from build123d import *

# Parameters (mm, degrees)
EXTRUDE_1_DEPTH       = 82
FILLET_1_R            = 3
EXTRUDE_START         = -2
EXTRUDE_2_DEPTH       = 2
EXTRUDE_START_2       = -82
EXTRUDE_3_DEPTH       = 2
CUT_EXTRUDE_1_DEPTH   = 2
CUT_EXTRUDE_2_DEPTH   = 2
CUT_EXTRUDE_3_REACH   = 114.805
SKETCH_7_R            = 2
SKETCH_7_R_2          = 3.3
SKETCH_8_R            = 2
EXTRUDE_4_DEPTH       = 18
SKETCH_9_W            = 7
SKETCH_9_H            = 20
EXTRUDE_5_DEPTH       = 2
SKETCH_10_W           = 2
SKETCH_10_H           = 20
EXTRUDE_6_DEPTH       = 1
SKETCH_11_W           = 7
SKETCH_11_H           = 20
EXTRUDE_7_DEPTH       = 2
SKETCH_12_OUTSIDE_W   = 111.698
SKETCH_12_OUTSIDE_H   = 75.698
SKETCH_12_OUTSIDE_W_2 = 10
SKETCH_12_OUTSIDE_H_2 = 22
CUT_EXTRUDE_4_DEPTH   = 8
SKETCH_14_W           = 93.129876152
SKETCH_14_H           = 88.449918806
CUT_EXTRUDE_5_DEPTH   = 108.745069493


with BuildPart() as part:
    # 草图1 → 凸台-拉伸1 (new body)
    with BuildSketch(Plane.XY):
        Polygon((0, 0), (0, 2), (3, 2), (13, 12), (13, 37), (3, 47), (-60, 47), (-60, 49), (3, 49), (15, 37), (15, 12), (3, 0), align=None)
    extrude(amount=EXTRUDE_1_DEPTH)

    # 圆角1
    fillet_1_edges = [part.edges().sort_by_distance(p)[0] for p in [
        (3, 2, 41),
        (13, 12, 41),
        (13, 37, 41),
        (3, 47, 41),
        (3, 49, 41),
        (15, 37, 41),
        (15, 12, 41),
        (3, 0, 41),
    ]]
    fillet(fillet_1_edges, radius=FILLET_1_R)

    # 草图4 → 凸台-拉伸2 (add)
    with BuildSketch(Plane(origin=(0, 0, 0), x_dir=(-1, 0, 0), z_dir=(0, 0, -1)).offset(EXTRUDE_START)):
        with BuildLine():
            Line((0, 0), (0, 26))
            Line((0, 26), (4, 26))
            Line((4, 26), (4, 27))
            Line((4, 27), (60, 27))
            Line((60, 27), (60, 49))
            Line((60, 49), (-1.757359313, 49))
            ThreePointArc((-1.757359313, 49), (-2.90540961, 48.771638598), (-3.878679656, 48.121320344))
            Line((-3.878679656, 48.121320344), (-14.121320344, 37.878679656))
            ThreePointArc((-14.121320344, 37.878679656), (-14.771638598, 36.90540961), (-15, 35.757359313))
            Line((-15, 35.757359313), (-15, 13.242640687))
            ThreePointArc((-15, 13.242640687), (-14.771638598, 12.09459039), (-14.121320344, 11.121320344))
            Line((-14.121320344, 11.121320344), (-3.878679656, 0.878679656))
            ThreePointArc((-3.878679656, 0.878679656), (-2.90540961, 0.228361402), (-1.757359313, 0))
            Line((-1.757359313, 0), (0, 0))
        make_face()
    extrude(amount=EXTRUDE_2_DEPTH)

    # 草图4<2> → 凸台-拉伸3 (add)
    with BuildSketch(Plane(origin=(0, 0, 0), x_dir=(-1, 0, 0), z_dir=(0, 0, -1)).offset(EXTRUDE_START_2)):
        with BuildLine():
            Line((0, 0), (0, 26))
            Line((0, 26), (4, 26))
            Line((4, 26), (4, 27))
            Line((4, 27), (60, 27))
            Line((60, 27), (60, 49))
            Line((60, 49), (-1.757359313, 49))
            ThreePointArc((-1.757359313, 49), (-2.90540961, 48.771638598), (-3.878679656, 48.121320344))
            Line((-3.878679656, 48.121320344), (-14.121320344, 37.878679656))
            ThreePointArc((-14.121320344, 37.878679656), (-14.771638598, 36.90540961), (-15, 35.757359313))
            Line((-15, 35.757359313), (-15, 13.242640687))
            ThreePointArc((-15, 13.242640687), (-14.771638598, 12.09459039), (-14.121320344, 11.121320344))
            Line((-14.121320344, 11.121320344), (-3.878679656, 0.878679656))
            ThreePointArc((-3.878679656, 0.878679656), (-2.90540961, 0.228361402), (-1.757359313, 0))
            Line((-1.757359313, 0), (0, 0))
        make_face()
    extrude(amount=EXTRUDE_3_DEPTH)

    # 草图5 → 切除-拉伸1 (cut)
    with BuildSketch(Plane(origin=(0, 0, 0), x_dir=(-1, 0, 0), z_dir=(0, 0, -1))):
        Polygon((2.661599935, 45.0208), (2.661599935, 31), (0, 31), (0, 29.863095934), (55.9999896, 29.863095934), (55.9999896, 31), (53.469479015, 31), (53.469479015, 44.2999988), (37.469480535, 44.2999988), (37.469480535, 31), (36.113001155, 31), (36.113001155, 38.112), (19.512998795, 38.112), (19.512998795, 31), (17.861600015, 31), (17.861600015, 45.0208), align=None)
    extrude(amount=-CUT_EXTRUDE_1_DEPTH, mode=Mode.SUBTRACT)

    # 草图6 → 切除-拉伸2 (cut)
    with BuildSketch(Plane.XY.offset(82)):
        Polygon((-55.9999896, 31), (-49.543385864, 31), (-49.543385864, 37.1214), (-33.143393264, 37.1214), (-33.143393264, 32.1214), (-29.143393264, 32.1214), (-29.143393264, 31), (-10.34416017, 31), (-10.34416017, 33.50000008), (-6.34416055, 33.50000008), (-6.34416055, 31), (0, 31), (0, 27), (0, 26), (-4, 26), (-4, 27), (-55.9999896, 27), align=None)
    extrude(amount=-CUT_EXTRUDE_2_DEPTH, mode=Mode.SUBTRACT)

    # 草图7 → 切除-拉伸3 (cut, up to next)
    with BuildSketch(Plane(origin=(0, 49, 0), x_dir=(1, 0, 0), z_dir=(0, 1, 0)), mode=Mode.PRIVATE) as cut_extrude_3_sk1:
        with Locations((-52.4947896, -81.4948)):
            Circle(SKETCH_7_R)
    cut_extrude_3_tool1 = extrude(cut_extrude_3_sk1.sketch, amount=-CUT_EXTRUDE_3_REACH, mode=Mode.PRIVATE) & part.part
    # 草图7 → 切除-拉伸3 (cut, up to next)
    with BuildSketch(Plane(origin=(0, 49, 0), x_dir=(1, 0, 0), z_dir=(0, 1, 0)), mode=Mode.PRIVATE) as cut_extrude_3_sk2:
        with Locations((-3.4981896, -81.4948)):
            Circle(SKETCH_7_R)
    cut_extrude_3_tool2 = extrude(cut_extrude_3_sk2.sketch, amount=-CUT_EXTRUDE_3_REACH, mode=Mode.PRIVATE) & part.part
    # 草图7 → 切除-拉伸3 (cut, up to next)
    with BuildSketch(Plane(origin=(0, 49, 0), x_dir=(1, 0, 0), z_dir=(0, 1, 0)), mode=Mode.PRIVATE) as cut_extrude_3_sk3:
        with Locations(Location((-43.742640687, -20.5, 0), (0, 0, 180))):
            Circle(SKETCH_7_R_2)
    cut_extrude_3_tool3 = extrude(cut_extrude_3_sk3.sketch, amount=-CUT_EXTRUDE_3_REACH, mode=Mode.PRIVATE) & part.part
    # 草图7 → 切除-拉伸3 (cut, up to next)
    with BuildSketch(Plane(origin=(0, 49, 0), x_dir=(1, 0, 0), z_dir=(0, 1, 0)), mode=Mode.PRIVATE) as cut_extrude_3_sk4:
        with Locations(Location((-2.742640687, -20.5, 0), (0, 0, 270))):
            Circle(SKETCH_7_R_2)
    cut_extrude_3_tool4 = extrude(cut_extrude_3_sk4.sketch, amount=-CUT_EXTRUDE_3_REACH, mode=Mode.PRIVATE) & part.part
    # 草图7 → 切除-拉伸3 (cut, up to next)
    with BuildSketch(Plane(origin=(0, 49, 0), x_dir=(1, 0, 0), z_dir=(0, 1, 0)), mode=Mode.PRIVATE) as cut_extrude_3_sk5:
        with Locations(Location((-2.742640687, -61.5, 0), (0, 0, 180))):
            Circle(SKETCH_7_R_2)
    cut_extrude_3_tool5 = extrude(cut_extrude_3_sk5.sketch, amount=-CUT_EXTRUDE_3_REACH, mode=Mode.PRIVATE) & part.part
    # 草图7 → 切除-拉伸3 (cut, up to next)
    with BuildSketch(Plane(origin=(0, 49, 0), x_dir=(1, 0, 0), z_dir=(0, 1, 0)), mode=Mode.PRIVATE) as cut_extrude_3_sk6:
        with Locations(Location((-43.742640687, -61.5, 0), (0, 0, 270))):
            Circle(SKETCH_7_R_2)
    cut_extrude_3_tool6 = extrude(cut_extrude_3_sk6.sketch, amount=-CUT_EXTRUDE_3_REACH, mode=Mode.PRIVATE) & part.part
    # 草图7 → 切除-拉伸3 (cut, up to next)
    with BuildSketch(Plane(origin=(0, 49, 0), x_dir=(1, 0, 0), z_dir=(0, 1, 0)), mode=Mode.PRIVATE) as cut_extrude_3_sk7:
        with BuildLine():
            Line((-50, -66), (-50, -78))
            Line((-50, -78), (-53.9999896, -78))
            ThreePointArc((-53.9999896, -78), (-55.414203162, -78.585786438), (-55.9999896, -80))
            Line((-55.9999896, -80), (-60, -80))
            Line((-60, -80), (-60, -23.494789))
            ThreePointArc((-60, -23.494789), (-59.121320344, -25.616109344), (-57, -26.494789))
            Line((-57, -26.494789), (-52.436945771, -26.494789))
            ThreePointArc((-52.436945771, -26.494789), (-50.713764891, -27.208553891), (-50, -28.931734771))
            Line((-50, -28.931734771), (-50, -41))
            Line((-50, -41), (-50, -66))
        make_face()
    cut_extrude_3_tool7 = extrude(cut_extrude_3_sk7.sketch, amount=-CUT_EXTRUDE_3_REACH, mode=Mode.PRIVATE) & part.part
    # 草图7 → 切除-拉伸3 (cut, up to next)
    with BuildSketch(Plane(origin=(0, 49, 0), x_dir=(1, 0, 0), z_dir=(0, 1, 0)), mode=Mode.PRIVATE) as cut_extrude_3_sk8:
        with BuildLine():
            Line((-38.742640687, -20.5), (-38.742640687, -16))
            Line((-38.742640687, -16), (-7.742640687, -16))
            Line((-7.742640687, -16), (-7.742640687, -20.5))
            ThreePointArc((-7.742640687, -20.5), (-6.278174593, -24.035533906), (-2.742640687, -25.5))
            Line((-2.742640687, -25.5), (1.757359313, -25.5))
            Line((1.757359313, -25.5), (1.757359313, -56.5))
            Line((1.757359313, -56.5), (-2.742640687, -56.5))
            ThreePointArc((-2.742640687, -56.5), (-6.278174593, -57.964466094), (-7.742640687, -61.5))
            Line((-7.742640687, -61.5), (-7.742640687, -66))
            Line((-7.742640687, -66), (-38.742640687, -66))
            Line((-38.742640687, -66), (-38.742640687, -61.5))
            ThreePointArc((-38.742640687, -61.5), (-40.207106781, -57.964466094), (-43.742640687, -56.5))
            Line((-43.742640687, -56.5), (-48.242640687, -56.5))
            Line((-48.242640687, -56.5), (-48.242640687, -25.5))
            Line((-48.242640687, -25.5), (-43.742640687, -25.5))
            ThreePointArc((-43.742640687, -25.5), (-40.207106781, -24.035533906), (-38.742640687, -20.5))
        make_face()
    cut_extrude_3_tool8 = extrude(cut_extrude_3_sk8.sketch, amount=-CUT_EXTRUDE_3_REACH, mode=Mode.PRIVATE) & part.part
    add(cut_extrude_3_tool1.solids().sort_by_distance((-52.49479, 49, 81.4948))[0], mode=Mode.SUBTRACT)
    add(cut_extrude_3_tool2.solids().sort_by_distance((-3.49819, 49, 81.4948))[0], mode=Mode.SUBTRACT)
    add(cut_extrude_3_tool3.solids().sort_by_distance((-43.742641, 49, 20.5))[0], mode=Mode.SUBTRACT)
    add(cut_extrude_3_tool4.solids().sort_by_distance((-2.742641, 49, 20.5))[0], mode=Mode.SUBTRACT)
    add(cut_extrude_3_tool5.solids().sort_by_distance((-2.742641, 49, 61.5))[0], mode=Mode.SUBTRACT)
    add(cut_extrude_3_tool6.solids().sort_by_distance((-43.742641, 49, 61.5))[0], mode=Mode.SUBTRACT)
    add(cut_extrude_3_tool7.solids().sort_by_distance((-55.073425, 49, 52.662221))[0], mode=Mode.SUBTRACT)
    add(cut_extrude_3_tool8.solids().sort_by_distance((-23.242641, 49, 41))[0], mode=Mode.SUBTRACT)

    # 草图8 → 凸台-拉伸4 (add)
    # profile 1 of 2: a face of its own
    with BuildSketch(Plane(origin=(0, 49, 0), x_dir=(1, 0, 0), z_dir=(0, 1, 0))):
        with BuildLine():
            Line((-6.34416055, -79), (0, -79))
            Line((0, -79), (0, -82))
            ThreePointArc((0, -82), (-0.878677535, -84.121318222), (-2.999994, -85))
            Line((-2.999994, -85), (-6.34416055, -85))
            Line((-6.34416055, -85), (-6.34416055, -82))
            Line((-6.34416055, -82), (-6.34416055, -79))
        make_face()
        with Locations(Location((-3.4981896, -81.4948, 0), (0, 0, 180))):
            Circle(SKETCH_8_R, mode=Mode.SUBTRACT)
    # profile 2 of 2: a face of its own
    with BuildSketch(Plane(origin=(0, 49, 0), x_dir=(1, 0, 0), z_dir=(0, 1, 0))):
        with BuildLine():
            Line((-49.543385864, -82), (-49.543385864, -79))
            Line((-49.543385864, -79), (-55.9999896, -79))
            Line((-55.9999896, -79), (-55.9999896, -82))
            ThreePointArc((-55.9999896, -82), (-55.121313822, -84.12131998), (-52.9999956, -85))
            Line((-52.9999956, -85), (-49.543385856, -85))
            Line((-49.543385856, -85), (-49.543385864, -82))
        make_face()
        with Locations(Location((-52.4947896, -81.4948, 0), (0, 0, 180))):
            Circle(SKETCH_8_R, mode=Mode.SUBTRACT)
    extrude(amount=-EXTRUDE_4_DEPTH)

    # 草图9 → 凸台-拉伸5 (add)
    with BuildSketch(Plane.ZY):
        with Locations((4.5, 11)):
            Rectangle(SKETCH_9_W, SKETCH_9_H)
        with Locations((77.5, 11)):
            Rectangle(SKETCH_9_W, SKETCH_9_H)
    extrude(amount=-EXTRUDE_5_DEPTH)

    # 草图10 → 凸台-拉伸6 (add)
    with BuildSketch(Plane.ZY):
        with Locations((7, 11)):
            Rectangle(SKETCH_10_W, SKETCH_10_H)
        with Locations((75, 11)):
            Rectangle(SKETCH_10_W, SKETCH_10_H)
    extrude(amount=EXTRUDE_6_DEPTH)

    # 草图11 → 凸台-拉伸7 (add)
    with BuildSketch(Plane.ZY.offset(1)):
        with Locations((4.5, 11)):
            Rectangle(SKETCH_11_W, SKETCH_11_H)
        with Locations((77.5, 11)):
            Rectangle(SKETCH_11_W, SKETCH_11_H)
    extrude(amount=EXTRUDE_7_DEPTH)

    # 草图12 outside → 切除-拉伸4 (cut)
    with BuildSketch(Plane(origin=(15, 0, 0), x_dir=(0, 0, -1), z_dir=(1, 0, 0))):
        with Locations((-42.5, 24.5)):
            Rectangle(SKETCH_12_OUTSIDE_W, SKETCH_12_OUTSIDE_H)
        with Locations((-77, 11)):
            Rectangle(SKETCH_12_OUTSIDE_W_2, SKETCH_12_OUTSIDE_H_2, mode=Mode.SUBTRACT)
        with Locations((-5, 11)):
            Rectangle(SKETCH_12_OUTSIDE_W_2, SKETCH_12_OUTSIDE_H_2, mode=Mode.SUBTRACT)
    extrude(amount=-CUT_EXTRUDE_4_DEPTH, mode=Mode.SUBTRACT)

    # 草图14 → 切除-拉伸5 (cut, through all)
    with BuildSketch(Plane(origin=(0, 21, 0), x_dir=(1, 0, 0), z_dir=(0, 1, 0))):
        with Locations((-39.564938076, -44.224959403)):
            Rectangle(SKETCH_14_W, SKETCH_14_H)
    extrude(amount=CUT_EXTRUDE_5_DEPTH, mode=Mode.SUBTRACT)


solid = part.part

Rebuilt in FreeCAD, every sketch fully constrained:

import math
import FreeCAD as App
import Part
import Sketcher

V = App.Vector


def edges_at(feature, points):
    """Names of the edges that pass closest to the given points."""
    edges = feature.Shape.Edges
    near = lambda p: min(range(len(edges)), key=lambda i: edges[i].distToShape(Part.Vertex(*p))[0])
    return sorted({f"Edge{near(p) + 1}" for p in points})


def add_polygon(sketch, points):
    """Adds a closed chain of lines whose ends are joined by coincident constraints."""
    first, n = sketch.GeometryCount, len(points)
    for a, b in zip(points, points[1:] + points[:1]):
        sketch.addGeometry(Part.LineSegment(App.Vector(*a, 0), App.Vector(*b, 0)), False)
    for i in range(n):
        sketch.addConstraint(Sketcher.Constraint("Coincident", first + i, 2, first + (i + 1) % n, 1))

doc = App.newDocument("Part")
body = doc.addObject("PartDesign::Body", "Body")

# Sketch on XY plane
sketch1 = body.newObject("Sketcher::SketchObject", "Sketch")
sketch1.AttachmentSupport = (doc.getObject("XY_Plane"), [""])
sketch1.MapMode = "FlatFace"
add_polygon(sketch1, [(0, 2), (0, 0), (3, 0), (15, 12), (15, 37), (3, 49), (-60, 49), (-60, 47), (3, 47), (13, 37), (13, 12), (3, 2)])  # lines 0-11
sketch1.addConstraint(Sketcher.Constraint("Vertical", 0))
sketch1.addConstraint(Sketcher.Constraint("Horizontal", 1))
sketch1.addConstraint(Sketcher.Constraint("Vertical", 3))
sketch1.addConstraint(Sketcher.Constraint("Horizontal", 5))
sketch1.addConstraint(Sketcher.Constraint("Vertical", 6))
sketch1.addConstraint(Sketcher.Constraint("Horizontal", 7))
sketch1.addConstraint(Sketcher.Constraint("Vertical", 9))
sketch1.addConstraint(Sketcher.Constraint("Horizontal", 11))
sketch1.addConstraint(Sketcher.Constraint("Coincident", 0, 2, -1, 1))
sketch1.addConstraint(Sketcher.Constraint("Perpendicular", 2, 4))
sketch1.addConstraint(Sketcher.Constraint("Parallel", 4, 8))
sketch1.addConstraint(Sketcher.Constraint("Perpendicular", 8, 10))
sketch1.addConstraint(Sketcher.Constraint("Horizontal", 3, 2, 8, 2))
sketch1.addConstraint(Sketcher.Constraint("Horizontal", 2, 2, 9, 2))
sketch1.addConstraint(Sketcher.Constraint("Vertical", 1, 2, 4, 2))
sketch1.addConstraint(Sketcher.Constraint("Vertical", 4, 2, 7, 2))
sketch1.addConstraint(Sketcher.Constraint("Vertical", 7, 2, 10, 2))
sketch1.addConstraint(Sketcher.Constraint("Equal", 0, 6))
sketch1.addConstraint(Sketcher.Constraint("DistanceX", 1, 1, 1, 2, 3.0))
sketch1.addConstraint(Sketcher.Constraint("DistanceX", 5, 2, 5, 1, 63.0))
sketch1.addConstraint(Sketcher.Constraint("DistanceY", 0, 2, 0, 1, 2.0))
sketch1.addConstraint(Sketcher.Constraint("DistanceY", 3, 1, 3, 2, 25.0))
sketch1.addConstraint(Sketcher.Constraint("DistanceX", -1, 1, 2, 2, 15.0))
pad1 = body.newObject("PartDesign::Pad", "Pad")
pad1.Profile = sketch1
pad1.Length = 82
doc.recompute()

fillet = body.newObject("PartDesign::Fillet", "Fillet")
fillet.Base = (pad1, edges_at(pad1, [
    (3, 2, 41),
    (13, 12, 41),
    (13, 37, 41),
    (3, 47, 41),
    (3, 49, 41),
    (15, 37, 41),
    (15, 12, 41),
    (3, 0, 41),
]))
fillet.Radius = 3

# Sketch on XY plane
sketch2 = body.newObject("Sketcher::SketchObject", "Sketch001")
sketch2.AttachmentSupport = (doc.getObject("XY_Plane"), [""])
sketch2.MapMode = "FlatFace"
sketch2.AttachmentOffset = App.Placement(V(0, 0, 2), App.Rotation())
sketch2.addGeometry(Part.LineSegment(V(0, 0, 0), V(0, 26, 0)), False)
sketch2.addGeometry(Part.LineSegment(V(0, 26, 0), V(-4, 26, 0)), False)
sketch2.addGeometry(Part.LineSegment(V(-4, 26, 0), V(-4, 27, 0)), False)
sketch2.addGeometry(Part.LineSegment(V(-4, 27, 0), V(-60, 27, 0)), False)
sketch2.addGeometry(Part.LineSegment(V(-60, 27, 0), V(-60, 49, 0)), False)
sketch2.addGeometry(Part.LineSegment(V(-60, 49, 0), V(1.8, 49, 0)), False)
sketch2.addGeometry(Part.ArcOfCircle(Part.Circle(V(1.8, 46, 0), V(0, 0, 1), 3), math.radians(45), math.radians(90)), False)
sketch2.addGeometry(Part.LineSegment(V(3.9, 48.1, 0), V(14.1, 37.9, 0)), False)
sketch2.addGeometry(Part.ArcOfCircle(Part.Circle(V(12, 35.8, 0), V(0, 0, 1), 3), math.radians(0), math.radians(45)), False)
sketch2.addGeometry(Part.LineSegment(V(15, 35.8, 0), V(15, 13.2, 0)), False)
sketch2.addGeometry(Part.ArcOfCircle(Part.Circle(V(12, 13.2, 0), V(0, 0, 1), 3), math.radians(-45), math.radians(0)), False)
sketch2.addGeometry(Part.LineSegment(V(14.1, 11.1, 0), V(3.9, 0.9, 0)), False)
sketch2.addGeometry(Part.ArcOfCircle(Part.Circle(V(1.8, 3, 0), V(0, 0, 1), 3), math.radians(-90), math.radians(-45)), False)
sketch2.addGeometry(Part.LineSegment(V(1.8, 0, 0), V(0, 0, 0)), False)
sketch2.addConstraint(Sketcher.Constraint("Coincident", 0, 2, 1, 1))
sketch2.addConstraint(Sketcher.Constraint("Coincident", 1, 2, 2, 1))
sketch2.addConstraint(Sketcher.Constraint("Coincident", 2, 2, 3, 1))
sketch2.addConstraint(Sketcher.Constraint("Coincident", 3, 2, 4, 1))
sketch2.addConstraint(Sketcher.Constraint("Coincident", 4, 2, 5, 1))
sketch2.addConstraint(Sketcher.Constraint("Tangent", 5, 2, 6, 2))
sketch2.addConstraint(Sketcher.Constraint("Tangent", 6, 1, 7, 1))
sketch2.addConstraint(Sketcher.Constraint("Tangent", 7, 2, 8, 2))
sketch2.addConstraint(Sketcher.Constraint("Tangent", 8, 1, 9, 1))
sketch2.addConstraint(Sketcher.Constraint("Tangent", 9, 2, 10, 2))
sketch2.addConstraint(Sketcher.Constraint("Tangent", 10, 1, 11, 1))
sketch2.addConstraint(Sketcher.Constraint("Tangent", 11, 2, 12, 2))
sketch2.addConstraint(Sketcher.Constraint("Tangent", 12, 1, 13, 1))
sketch2.addConstraint(Sketcher.Constraint("Coincident", 13, 2, 0, 1))
sketch2.addConstraint(Sketcher.Constraint("Vertical", 0))
sketch2.addConstraint(Sketcher.Constraint("Horizontal", 1))
sketch2.addConstraint(Sketcher.Constraint("Vertical", 2))
sketch2.addConstraint(Sketcher.Constraint("Horizontal", 3))
sketch2.addConstraint(Sketcher.Constraint("Vertical", 4))
sketch2.addConstraint(Sketcher.Constraint("Horizontal", 5))
sketch2.addConstraint(Sketcher.Constraint("Vertical", 9))
sketch2.addConstraint(Sketcher.Constraint("Horizontal", 13))
sketch2.addConstraint(Sketcher.Constraint("Coincident", 13, 2, -1, 1))
sketch2.addConstraint(Sketcher.Constraint("Equal", 6, 8))
sketch2.addConstraint(Sketcher.Constraint("Equal", 8, 10))
sketch2.addConstraint(Sketcher.Constraint("Equal", 10, 12))
sketch2.addConstraint(Sketcher.Constraint("Perpendicular", 7, 11))
sketch2.addConstraint(Sketcher.Constraint("Vertical", 6, 3, 12, 3))
sketch2.addConstraint(Sketcher.Constraint("Vertical", 7, 2, 10, 1))
sketch2.addConstraint(Sketcher.Constraint("Radius", 6, 3.0))
sketch2.addConstraint(Sketcher.Constraint("DistanceX", 1, 2, 1, 1, 4.0))
sketch2.addConstraint(Sketcher.Constraint("DistanceX", 3, 2, 3, 1, 56.0))
sketch2.addConstraint(Sketcher.Constraint("DistanceY", 0, 1, 0, 2, 26.0))
sketch2.addConstraint(Sketcher.Constraint("DistanceY", 2, 1, 2, 2, 1.0))
sketch2.addConstraint(Sketcher.Constraint("DistanceY", 4, 1, 4, 2, 22.0))
sketch2.addConstraint(Sketcher.Constraint("DistanceX", -1, 1, 8, 3, 12.0))
sketch2.addConstraint(Sketcher.Constraint("DistanceX", 5, 1, 5, 2, 61.757359))
pad2 = body.newObject("PartDesign::Pad", "Pad001")
pad2.Profile = sketch2
pad2.Length = 2
pad2.Reversed = True

# Sketch on XY plane
sketch3 = body.newObject("Sketcher::SketchObject", "Sketch002")
sketch3.AttachmentSupport = (doc.getObject("XY_Plane"), [""])
sketch3.MapMode = "FlatFace"
sketch3.AttachmentOffset = App.Placement(V(0, 0, 82), App.Rotation())
sketch3.addGeometry(Part.LineSegment(V(0, 0, 0), V(0, 26, 0)), False)
sketch3.addGeometry(Part.LineSegment(V(0, 26, 0), V(-4, 26, 0)), False)
sketch3.addGeometry(Part.LineSegment(V(-4, 26, 0), V(-4, 27, 0)), False)
sketch3.addGeometry(Part.LineSegment(V(-4, 27, 0), V(-60, 27, 0)), False)
sketch3.addGeometry(Part.LineSegment(V(-60, 27, 0), V(-60, 49, 0)), False)
sketch3.addGeometry(Part.LineSegment(V(-60, 49, 0), V(1.8, 49, 0)), False)
sketch3.addGeometry(Part.ArcOfCircle(Part.Circle(V(1.8, 46, 0), V(0, 0, 1), 3), math.radians(45), math.radians(90)), False)
sketch3.addGeometry(Part.LineSegment(V(3.9, 48.1, 0), V(14.1, 37.9, 0)), False)
sketch3.addGeometry(Part.ArcOfCircle(Part.Circle(V(12, 35.8, 0), V(0, 0, 1), 3), math.radians(0), math.radians(45)), False)
sketch3.addGeometry(Part.LineSegment(V(15, 35.8, 0), V(15, 13.2, 0)), False)
sketch3.addGeometry(Part.ArcOfCircle(Part.Circle(V(12, 13.2, 0), V(0, 0, 1), 3), math.radians(-45), math.radians(0)), False)
sketch3.addGeometry(Part.LineSegment(V(14.1, 11.1, 0), V(3.9, 0.9, 0)), False)
sketch3.addGeometry(Part.ArcOfCircle(Part.Circle(V(1.8, 3, 0), V(0, 0, 1), 3), math.radians(-90), math.radians(-45)), False)
sketch3.addGeometry(Part.LineSegment(V(1.8, 0, 0), V(0, 0, 0)), False)
sketch3.addConstraint(Sketcher.Constraint("Coincident", 0, 2, 1, 1))
sketch3.addConstraint(Sketcher.Constraint("Coincident", 1, 2, 2, 1))
sketch3.addConstraint(Sketcher.Constraint("Coincident", 2, 2, 3, 1))
sketch3.addConstraint(Sketcher.Constraint("Coincident", 3, 2, 4, 1))
sketch3.addConstraint(Sketcher.Constraint("Coincident", 4, 2, 5, 1))
sketch3.addConstraint(Sketcher.Constraint("Tangent", 5, 2, 6, 2))
sketch3.addConstraint(Sketcher.Constraint("Tangent", 6, 1, 7, 1))
sketch3.addConstraint(Sketcher.Constraint("Tangent", 7, 2, 8, 2))
sketch3.addConstraint(Sketcher.Constraint("Tangent", 8, 1, 9, 1))
sketch3.addConstraint(Sketcher.Constraint("Tangent", 9, 2, 10, 2))
sketch3.addConstraint(Sketcher.Constraint("Tangent", 10, 1, 11, 1))
sketch3.addConstraint(Sketcher.Constraint("Tangent", 11, 2, 12, 2))
sketch3.addConstraint(Sketcher.Constraint("Tangent", 12, 1, 13, 1))
sketch3.addConstraint(Sketcher.Constraint("Coincident", 13, 2, 0, 1))
sketch3.addConstraint(Sketcher.Constraint("Vertical", 0))
sketch3.addConstraint(Sketcher.Constraint("Horizontal", 1))
sketch3.addConstraint(Sketcher.Constraint("Vertical", 2))
sketch3.addConstraint(Sketcher.Constraint("Horizontal", 3))
sketch3.addConstraint(Sketcher.Constraint("Vertical", 4))
sketch3.addConstraint(Sketcher.Constraint("Horizontal", 5))
sketch3.addConstraint(Sketcher.Constraint("Vertical", 9))
sketch3.addConstraint(Sketcher.Constraint("Horizontal", 13))
sketch3.addConstraint(Sketcher.Constraint("Coincident", 13, 2, -1, 1))
sketch3.addConstraint(Sketcher.Constraint("Equal", 6, 8))
sketch3.addConstraint(Sketcher.Constraint("Equal", 8, 10))
sketch3.addConstraint(Sketcher.Constraint("Equal", 10, 12))
sketch3.addConstraint(Sketcher.Constraint("Perpendicular", 7, 11))
sketch3.addConstraint(Sketcher.Constraint("Vertical", 6, 3, 12, 3))
sketch3.addConstraint(Sketcher.Constraint("Vertical", 7, 2, 10, 1))
sketch3.addConstraint(Sketcher.Constraint("Radius", 6, 3.0))
sketch3.addConstraint(Sketcher.Constraint("DistanceX", 1, 2, 1, 1, 4.0))
sketch3.addConstraint(Sketcher.Constraint("DistanceX", 3, 2, 3, 1, 56.0))
sketch3.addConstraint(Sketcher.Constraint("DistanceY", 0, 1, 0, 2, 26.0))
sketch3.addConstraint(Sketcher.Constraint("DistanceY", 2, 1, 2, 2, 1.0))
sketch3.addConstraint(Sketcher.Constraint("DistanceY", 4, 1, 4, 2, 22.0))
sketch3.addConstraint(Sketcher.Constraint("DistanceX", -1, 1, 8, 3, 12.0))
sketch3.addConstraint(Sketcher.Constraint("DistanceX", 5, 1, 5, 2, 61.757359))
pad3 = body.newObject("PartDesign::Pad", "Pad002")
pad3.Profile = sketch3
pad3.Length = 2
pad3.Reversed = True

# Sketch on XY plane
sketch4 = body.newObject("Sketcher::SketchObject", "Sketch003")
sketch4.AttachmentSupport = (doc.getObject("XY_Plane"), [""])
sketch4.MapMode = "FlatFace"
add_polygon(sketch4, [(-2.7, 45), (-2.7, 31), (0, 31), (0, 29.9), (-56, 29.9), (-56, 31), (-53.5, 31), (-53.5, 44.3), (-37.5, 44.3), (-37.5, 31), (-36.1, 31), (-36.1, 38.1), (-19.5, 38.1), (-19.5, 31), (-17.9, 31), (-17.9, 45)])  # lines 0-15
sketch4.addConstraint(Sketcher.Constraint("Vertical", 0))
sketch4.addConstraint(Sketcher.Constraint("Horizontal", 1))
sketch4.addConstraint(Sketcher.Constraint("Vertical", 2))
sketch4.addConstraint(Sketcher.Constraint("Horizontal", 3))
sketch4.addConstraint(Sketcher.Constraint("Vertical", 4))
sketch4.addConstraint(Sketcher.Constraint("Horizontal", 5))
sketch4.addConstraint(Sketcher.Constraint("Vertical", 6))
sketch4.addConstraint(Sketcher.Constraint("Horizontal", 7))
sketch4.addConstraint(Sketcher.Constraint("Vertical", 8))
sketch4.addConstraint(Sketcher.Constraint("Horizontal", 9))
sketch4.addConstraint(Sketcher.Constraint("Vertical", 10))
sketch4.addConstraint(Sketcher.Constraint("Horizontal", 11))
sketch4.addConstraint(Sketcher.Constraint("Vertical", 12))
sketch4.addConstraint(Sketcher.Constraint("Horizontal", 13))
sketch4.addConstraint(Sketcher.Constraint("Vertical", 14))
sketch4.addConstraint(Sketcher.Constraint("Horizontal", 15))
sketch4.addConstraint(Sketcher.Constraint("PointOnObject", 1, 2, -2))
sketch4.addConstraint(Sketcher.Constraint("Horizontal", 1, 2, 4, 2))
sketch4.addConstraint(Sketcher.Constraint("Horizontal", 5, 2, 8, 2))
sketch4.addConstraint(Sketcher.Constraint("Horizontal", 9, 2, 12, 2))
sketch4.addConstraint(Sketcher.Constraint("DistanceX", 7, 1, 7, 2, 15.999998))
sketch4.addConstraint(Sketcher.Constraint("DistanceX", 15, 1, 15, 2, 15.2))
sketch4.addConstraint(Sketcher.Constraint("DistanceY", 6, 1, 6, 2, 13.299999))
sketch4.addConstraint(Sketcher.Constraint("DistanceY", -1, 1, 0, 2, 31.0))
sketch4.addConstraint(Sketcher.Constraint("DistanceY", 10, 1, 10, 2, 7.112))
sketch4.addConstraint(Sketcher.Constraint("DistanceX", 1, 1, 1, 2, 2.6616))
sketch4.addConstraint(Sketcher.Constraint("DistanceX", 13, 1, 13, 2, 1.651399))
sketch4.addConstraint(Sketcher.Constraint("DistanceY", 0, 2, 0, 1, 14.0208))
sketch4.addConstraint(Sketcher.Constraint("DistanceX", 9, 2, -1, 1, 36.113001))
sketch4.addConstraint(Sketcher.Constraint("DistanceX", 3, 2, 3, 1, 55.99999))
sketch4.addConstraint(Sketcher.Constraint("DistanceX", 5, 1, 5, 2, 2.530511))
sketch4.addConstraint(Sketcher.Constraint("DistanceY", 2, 2, 2, 1, 1.136904))
pocket1 = body.newObject("PartDesign::Pocket", "Pocket")
pocket1.Profile = sketch4
pocket1.Length = 2
pocket1.Reversed = True

# Sketch on XY plane
sketch5 = body.newObject("Sketcher::SketchObject", "Sketch004")
sketch5.AttachmentSupport = (doc.getObject("XY_Plane"), [""])
sketch5.MapMode = "FlatFace"
sketch5.AttachmentOffset = App.Placement(V(0, 0, 82), App.Rotation())
add_polygon(sketch5, [(-49.5, 31), (-56, 31), (-56, 27), (-4, 27), (-4, 26), (0, 26), (0, 31), (-6.3, 31), (-6.3, 33.5), (-10.3, 33.5), (-10.3, 31), (-29.1, 31), (-29.1, 32.1), (-33.1, 32.1), (-33.1, 37.1), (-49.5, 37.1)])  # lines 0-15
sketch5.addConstraint(Sketcher.Constraint("Horizontal", 0))
sketch5.addConstraint(Sketcher.Constraint("Vertical", 1))
sketch5.addConstraint(Sketcher.Constraint("Horizontal", 2))
sketch5.addConstraint(Sketcher.Constraint("Vertical", 3))
sketch5.addConstraint(Sketcher.Constraint("Horizontal", 4))
sketch5.addConstraint(Sketcher.Constraint("Vertical", 5))
sketch5.addConstraint(Sketcher.Constraint("Horizontal", 6))
sketch5.addConstraint(Sketcher.Constraint("Vertical", 7))
sketch5.addConstraint(Sketcher.Constraint("Horizontal", 8))
sketch5.addConstraint(Sketcher.Constraint("Vertical", 9))
sketch5.addConstraint(Sketcher.Constraint("Horizontal", 10))
sketch5.addConstraint(Sketcher.Constraint("Vertical", 11))
sketch5.addConstraint(Sketcher.Constraint("Horizontal", 12))
sketch5.addConstraint(Sketcher.Constraint("Vertical", 13))
sketch5.addConstraint(Sketcher.Constraint("Horizontal", 14))
sketch5.addConstraint(Sketcher.Constraint("Vertical", 15))
sketch5.addConstraint(Sketcher.Constraint("PointOnObject", 4, 2, -2))
sketch5.addConstraint(Sketcher.Constraint("Horizontal", 0, 2, 5, 2))
sketch5.addConstraint(Sketcher.Constraint("Horizontal", 6, 2, 9, 2))
sketch5.addConstraint(Sketcher.Constraint("Equal", 4, 8))
sketch5.addConstraint(Sketcher.Constraint("Equal", 8, 12))
sketch5.addConstraint(Sketcher.Constraint("Equal", 12, 1))
sketch5.addConstraint(Sketcher.Constraint("Equal", 5, 13))
sketch5.addConstraint(Sketcher.Constraint("DistanceX", 4, 1, 4, 2, 4.0))
sketch5.addConstraint(Sketcher.Constraint("DistanceY", 3, 2, 3, 1, 1.0))
sketch5.addConstraint(Sketcher.Constraint("DistanceY", 7, 1, 7, 2, 2.5))
sketch5.addConstraint(Sketcher.Constraint("DistanceY", -1, 1, 0, 2, 31.0))
sketch5.addConstraint(Sketcher.Constraint("DistanceY", 11, 1, 11, 2, 1.1214))
sketch5.addConstraint(Sketcher.Constraint("DistanceX", 2, 1, 2, 2, 51.99999))
sketch5.addConstraint(Sketcher.Constraint("DistanceX", 6, 2, 6, 1, 6.344161))
sketch5.addConstraint(Sketcher.Constraint("DistanceX", 0, 2, 0, 1, 6.456604))
sketch5.addConstraint(Sketcher.Constraint("DistanceX", 10, 2, 10, 1, 18.799233))
pocket2 = body.newObject("PartDesign::Pocket", "Pocket001")
pocket2.Profile = sketch5
pocket2.Length = 2

# Sketch on XZ plane
sketch6 = body.newObject("Sketcher::SketchObject", "Sketch005")
sketch6.AttachmentSupport = (doc.getObject("XZ_Plane"), [""])
sketch6.MapMode = "FlatFace"
sketch6.AttachmentOffset = App.Placement(V(0, 0, -49), App.Rotation())
sketch6.addGeometry(Part.Circle(V(-52.5, 81.5, 0), V(0, 0, 1), 2), False)
sketch6.addConstraint(Sketcher.Constraint("Diameter", 0, 4.0))
sketch6.addConstraint(Sketcher.Constraint("DistanceY", -1, 1, 0, 3, 81.4948))
sketch6.addConstraint(Sketcher.Constraint("DistanceX", 0, 3, -1, 1, 52.49479))
pocket3 = body.newObject("PartDesign::Pocket", "Pocket002")
pocket3.Profile = sketch6
pocket3.Type = "UpToFirst"
pocket3.Reversed = True

# Sketch on XZ plane
sketch7 = body.newObject("Sketcher::SketchObject", "Sketch006")
sketch7.AttachmentSupport = (doc.getObject("XZ_Plane"), [""])
sketch7.MapMode = "FlatFace"
sketch7.AttachmentOffset = App.Placement(V(0, 0, -49), App.Rotation())
sketch7.addGeometry(Part.Circle(V(-3.5, 81.5, 0), V(0, 0, 1), 2), False)
sketch7.addConstraint(Sketcher.Constraint("Diameter", 0, 4.0))
sketch7.addConstraint(Sketcher.Constraint("DistanceY", -1, 1, 0, 3, 81.4948))
sketch7.addConstraint(Sketcher.Constraint("DistanceX", 0, 3, -1, 1, 3.49819))
pocket4 = body.newObject("PartDesign::Pocket", "Pocket003")
pocket4.Profile = sketch7
pocket4.Type = "UpToFirst"
pocket4.Reversed = True

# Sketch on XZ plane
sketch8 = body.newObject("Sketcher::SketchObject", "Sketch007")
sketch8.AttachmentSupport = (doc.getObject("XZ_Plane"), [""])
sketch8.MapMode = "FlatFace"
sketch8.AttachmentOffset = App.Placement(V(0, 0, -49), App.Rotation())
sketch8.addGeometry(Part.Circle(V(-43.7, 20.5, 0), V(0, 0, 1), 3.3), False)
sketch8.addConstraint(Sketcher.Constraint("Diameter", 0, 6.6))
sketch8.addConstraint(Sketcher.Constraint("DistanceY", -1, 1, 0, 3, 20.5))
sketch8.addConstraint(Sketcher.Constraint("DistanceX", 0, 3, -1, 1, 43.742641))
pocket5 = body.newObject("PartDesign::Pocket", "Pocket004")
pocket5.Profile = sketch8
pocket5.Type = "UpToFirst"
pocket5.Reversed = True

# Sketch on XZ plane
sketch9 = body.newObject("Sketcher::SketchObject", "Sketch008")
sketch9.AttachmentSupport = (doc.getObject("XZ_Plane"), [""])
sketch9.MapMode = "FlatFace"
sketch9.AttachmentOffset = App.Placement(V(0, 0, -49), App.Rotation())
sketch9.addGeometry(Part.Circle(V(-2.7, 20.5, 0), V(0, 0, 1), 3.3), False)
sketch9.addConstraint(Sketcher.Constraint("Diameter", 0, 6.6))
sketch9.addConstraint(Sketcher.Constraint("DistanceY", -1, 1, 0, 3, 20.5))
sketch9.addConstraint(Sketcher.Constraint("DistanceX", 0, 3, -1, 1, 2.742641))
pocket6 = body.newObject("PartDesign::Pocket", "Pocket005")
pocket6.Profile = sketch9
pocket6.Type = "UpToFirst"
pocket6.Reversed = True

# Sketch on XZ plane
sketch10 = body.newObject("Sketcher::SketchObject", "Sketch009")
sketch10.AttachmentSupport = (doc.getObject("XZ_Plane"), [""])
sketch10.MapMode = "FlatFace"
sketch10.AttachmentOffset = App.Placement(V(0, 0, -49), App.Rotation())
sketch10.addGeometry(Part.Circle(V(-2.7, 61.5, 0), V(0, 0, 1), 3.3), False)
sketch10.addConstraint(Sketcher.Constraint("Diameter", 0, 6.6))
sketch10.addConstraint(Sketcher.Constraint("DistanceY", -1, 1, 0, 3, 61.5))
sketch10.addConstraint(Sketcher.Constraint("DistanceX", 0, 3, -1, 1, 2.742641))
pocket7 = body.newObject("PartDesign::Pocket", "Pocket006")
pocket7.Profile = sketch10
pocket7.Type = "UpToFirst"
pocket7.Reversed = True

# Sketch on XZ plane
sketch11 = body.newObject("Sketcher::SketchObject", "Sketch010")
sketch11.AttachmentSupport = (doc.getObject("XZ_Plane"), [""])
sketch11.MapMode = "FlatFace"
sketch11.AttachmentOffset = App.Placement(V(0, 0, -49), App.Rotation())
sketch11.addGeometry(Part.Circle(V(-43.7, 61.5, 0), V(0, 0, 1), 3.3), False)
sketch11.addConstraint(Sketcher.Constraint("Diameter", 0, 6.6))
sketch11.addConstraint(Sketcher.Constraint("DistanceY", -1, 1, 0, 3, 61.5))
sketch11.addConstraint(Sketcher.Constraint("DistanceX", 0, 3, -1, 1, 43.742641))
pocket8 = body.newObject("PartDesign::Pocket", "Pocket007")
pocket8.Profile = sketch11
pocket8.Type = "UpToFirst"
pocket8.Reversed = True

# Sketch on XZ plane
sketch12 = body.newObject("Sketcher::SketchObject", "Sketch011")
sketch12.AttachmentSupport = (doc.getObject("XZ_Plane"), [""])
sketch12.MapMode = "FlatFace"
sketch12.AttachmentOffset = App.Placement(V(0, 0, -49), App.Rotation())
sketch12.addGeometry(Part.LineSegment(V(-54, 78, 0), V(-50, 78, 0)), False)
sketch12.addGeometry(Part.LineSegment(V(-50, 78, 0), V(-50, 28.9, 0)), False)
sketch12.addGeometry(Part.ArcOfCircle(Part.Circle(V(-52.4, 28.9, 0), V(0, 0, 1), 2.4), math.radians(-90), math.radians(0)), False)
sketch12.addGeometry(Part.LineSegment(V(-52.4, 26.5, 0), V(-57, 26.5, 0)), False)
sketch12.addGeometry(Part.ArcOfCircle(Part.Circle(V(-57, 23.5, 0), V(0, 0, 1), 3), math.radians(90), math.radians(180)), False)
sketch12.addGeometry(Part.LineSegment(V(-60, 23.5, 0), V(-60, 80, 0)), False)
sketch12.addGeometry(Part.LineSegment(V(-60, 80, 0), V(-56, 80, 0)), False)
sketch12.addGeometry(Part.ArcOfCircle(Part.Circle(V(-54, 80, 0), V(0, 0, 1), 2), math.radians(-180), math.radians(-90)), False)
sketch12.addConstraint(Sketcher.Constraint("Coincident", 0, 2, 1, 1))
sketch12.addConstraint(Sketcher.Constraint("Tangent", 1, 2, 2, 2))
sketch12.addConstraint(Sketcher.Constraint("Tangent", 2, 1, 3, 1))
sketch12.addConstraint(Sketcher.Constraint("Tangent", 3, 2, 4, 1))
sketch12.addConstraint(Sketcher.Constraint("Tangent", 4, 2, 5, 1))
sketch12.addConstraint(Sketcher.Constraint("Coincident", 5, 2, 6, 1))
sketch12.addConstraint(Sketcher.Constraint("Coincident", 6, 2, 7, 1))
sketch12.addConstraint(Sketcher.Constraint("Tangent", 7, 2, 0, 1))
sketch12.addConstraint(Sketcher.Constraint("Horizontal", 0))
sketch12.addConstraint(Sketcher.Constraint("Vertical", 1))
sketch12.addConstraint(Sketcher.Constraint("Horizontal", 3))
sketch12.addConstraint(Sketcher.Constraint("Vertical", 5))
sketch12.addConstraint(Sketcher.Constraint("Horizontal", 6))
sketch12.addConstraint(Sketcher.Constraint("Horizontal", 7, 3, 5, 2))
sketch12.addConstraint(Sketcher.Constraint("Radius", 4, 3.0))
sketch12.addConstraint(Sketcher.Constraint("Radius", 7, 2.0))
sketch12.addConstraint(Sketcher.Constraint("DistanceX", 4, 3, -1, 1, 57.0))
sketch12.addConstraint(Sketcher.Constraint("DistanceY", -1, 1, 7, 3, 80.0))
sketch12.addConstraint(Sketcher.Constraint("DistanceX", 0, 2, -1, 1, 50.0))
sketch12.addConstraint(Sketcher.Constraint("Radius", 2, 2.436946))
sketch12.addConstraint(Sketcher.Constraint("DistanceX", 0, 1, 0, 2, 3.99999))
sketch12.addConstraint(Sketcher.Constraint("DistanceY", 5, 1, 5, 2, 56.505211))
pocket9 = body.newObject("PartDesign::Pocket", "Pocket008")
pocket9.Profile = sketch12
pocket9.Type = "UpToFirst"
pocket9.Reversed = True

# Sketch on XZ plane
sketch13 = body.newObject("Sketcher::SketchObject", "Sketch012")
sketch13.AttachmentSupport = (doc.getObject("XZ_Plane"), [""])
sketch13.MapMode = "FlatFace"
sketch13.AttachmentOffset = App.Placement(V(0, 0, -49), App.Rotation())
sketch13.addGeometry(Part.LineSegment(V(-38.7, 16, 0), V(-38.7, 20.5, 0)), False)
sketch13.addGeometry(Part.ArcOfCircle(Part.Circle(V(-43.7, 20.5, 0), V(0, 0, 1), 5), math.radians(0), math.radians(90)), False)
sketch13.addGeometry(Part.LineSegment(V(-43.7, 25.5, 0), V(-48.2, 25.5, 0)), False)
sketch13.addGeometry(Part.LineSegment(V(-48.2, 25.5, 0), V(-48.2, 56.5, 0)), False)
sketch13.addGeometry(Part.LineSegment(V(-48.2, 56.5, 0), V(-43.7, 56.5, 0)), False)
sketch13.addGeometry(Part.ArcOfCircle(Part.Circle(V(-43.7, 61.5, 0), V(0, 0, 1), 5), math.radians(-90), math.radians(0)), False)
sketch13.addGeometry(Part.LineSegment(V(-38.7, 61.5, 0), V(-38.7, 66, 0)), False)
sketch13.addGeometry(Part.LineSegment(V(-38.7, 66, 0), V(-7.7, 66, 0)), False)
sketch13.addGeometry(Part.LineSegment(V(-7.7, 66, 0), V(-7.7, 61.5, 0)), False)
sketch13.addGeometry(Part.ArcOfCircle(Part.Circle(V(-2.7, 61.5, 0), V(0, 0, 1), 5), math.radians(180), math.radians(270)), False)
sketch13.addGeometry(Part.LineSegment(V(-2.7, 56.5, 0), V(1.8, 56.5, 0)), False)
sketch13.addGeometry(Part.LineSegment(V(1.8, 56.5, 0), V(1.8, 25.5, 0)), False)
sketch13.addGeometry(Part.LineSegment(V(1.8, 25.5, 0), V(-2.7, 25.5, 0)), False)
sketch13.addGeometry(Part.ArcOfCircle(Part.Circle(V(-2.7, 20.5, 0), V(0, 0, 1), 5), math.radians(90), math.radians(180)), False)
sketch13.addGeometry(Part.LineSegment(V(-7.7, 20.5, 0), V(-7.7, 16, 0)), False)
sketch13.addGeometry(Part.LineSegment(V(-7.7, 16, 0), V(-38.7, 16, 0)), False)
sketch13.addConstraint(Sketcher.Constraint("Tangent", 0, 2, 1, 1))
sketch13.addConstraint(Sketcher.Constraint("Tangent", 1, 2, 2, 1))
sketch13.addConstraint(Sketcher.Constraint("Coincident", 2, 2, 3, 1))
sketch13.addConstraint(Sketcher.Constraint("Coincident", 3, 2, 4, 1))
sketch13.addConstraint(Sketcher.Constraint("Tangent", 4, 2, 5, 1))
sketch13.addConstraint(Sketcher.Constraint("Tangent", 5, 2, 6, 1))
sketch13.addConstraint(Sketcher.Constraint("Coincident", 6, 2, 7, 1))
sketch13.addConstraint(Sketcher.Constraint("Coincident", 7, 2, 8, 1))
sketch13.addConstraint(Sketcher.Constraint("Tangent", 8, 2, 9, 1))
sketch13.addConstraint(Sketcher.Constraint("Tangent", 9, 2, 10, 1))
sketch13.addConstraint(Sketcher.Constraint("Coincident", 10, 2, 11, 1))
sketch13.addConstraint(Sketcher.Constraint("Coincident", 11, 2, 12, 1))
sketch13.addConstraint(Sketcher.Constraint("Tangent", 12, 2, 13, 1))
sketch13.addConstraint(Sketcher.Constraint("Tangent", 13, 2, 14, 1))
sketch13.addConstraint(Sketcher.Constraint("Coincident", 14, 2, 15, 1))
sketch13.addConstraint(Sketcher.Constraint("Coincident", 15, 2, 0, 1))
sketch13.addConstraint(Sketcher.Constraint("Vertical", 0))
sketch13.addConstraint(Sketcher.Constraint("Horizontal", 2))
sketch13.addConstraint(Sketcher.Constraint("Vertical", 3))
sketch13.addConstraint(Sketcher.Constraint("Horizontal", 4))
sketch13.addConstraint(Sketcher.Constraint("Vertical", 6))
sketch13.addConstraint(Sketcher.Constraint("Horizontal", 7))
sketch13.addConstraint(Sketcher.Constraint("Vertical", 8))
sketch13.addConstraint(Sketcher.Constraint("Horizontal", 10))
sketch13.addConstraint(Sketcher.Constraint("Vertical", 11))
sketch13.addConstraint(Sketcher.Constraint("Horizontal", 12))
sketch13.addConstraint(Sketcher.Constraint("Vertical", 14))
sketch13.addConstraint(Sketcher.Constraint("Horizontal", 15))
sketch13.addConstraint(Sketcher.Constraint("Equal", 1, 5))
sketch13.addConstraint(Sketcher.Constraint("Equal", 5, 9))
sketch13.addConstraint(Sketcher.Constraint("Equal", 9, 13))
sketch13.addConstraint(Sketcher.Constraint("Horizontal", 5, 3, 9, 3))
sketch13.addConstraint(Sketcher.Constraint("Horizontal", 1, 3, 13, 3))
sketch13.addConstraint(Sketcher.Constraint("Vertical", 1, 3, 5, 3))
sketch13.addConstraint(Sketcher.Constraint("Vertical", 9, 3, 13, 3))
sketch13.addConstraint(Sketcher.Constraint("Equal", 4, 10))
sketch13.addConstraint(Sketcher.Constraint("Equal", 12, 0))
sketch13.addConstraint(Sketcher.Constraint("Equal", 15, 3))
sketch13.addConstraint(Sketcher.Constraint("Equal", 0, 6))
sketch13.addConstraint(Sketcher.Constraint("Radius", 1, 5.0))
sketch13.addConstraint(Sketcher.Constraint("DistanceX", 7, 1, 7, 2, 31.0))
sketch13.addConstraint(Sketcher.Constraint("DistanceX", 2, 2, 2, 1, 4.5))
sketch13.addConstraint(Sketcher.Constraint("DistanceY", -1, 1, 6, 2, 66.0))
sketch13.addConstraint(Sketcher.Constraint("DistanceX", 1, 3, -1, 1, 43.742641))
pocket10 = body.newObject("PartDesign::Pocket", "Pocket009")
pocket10.Profile = sketch13
pocket10.Type = "UpToFirst"
pocket10.Reversed = True

# Sketch on XZ plane
sketch14 = body.newObject("Sketcher::SketchObject", "Sketch013")
sketch14.AttachmentSupport = (doc.getObject("XZ_Plane"), [""])
sketch14.MapMode = "FlatFace"
sketch14.AttachmentOffset = App.Placement(V(0, 0, -49), App.Rotation())
sketch14.addGeometry(Part.LineSegment(V(0, 79, 0), V(-6.3, 79, 0)), False)
sketch14.addGeometry(Part.LineSegment(V(-6.3, 79, 0), V(-6.3, 85, 0)), False)
sketch14.addGeometry(Part.LineSegment(V(-6.3, 85, 0), V(-3, 85, 0)), False)
sketch14.addGeometry(Part.ArcOfCircle(Part.Circle(V(-3, 82, 0), V(0, 0, 1), 3), math.radians(0), math.radians(90)), False)
sketch14.addGeometry(Part.LineSegment(V(0, 82, 0), V(0, 79, 0)), False)
sketch14.addGeometry(Part.Circle(V(-3.5, 81.5, 0), V(0, 0, 1), 2), False)
sketch14.addGeometry(Part.LineSegment(V(-49.5, 82, 0), V(-49.5, 79, 0)), False)
sketch14.addGeometry(Part.LineSegment(V(-49.5, 79, 0), V(-56, 79, 0)), False)
sketch14.addGeometry(Part.LineSegment(V(-56, 79, 0), V(-56, 82, 0)), False)
sketch14.addGeometry(Part.ArcOfCircle(Part.Circle(V(-53, 82, 0), V(0, 0, 1), 3), math.radians(90), math.radians(180)), False)
sketch14.addGeometry(Part.LineSegment(V(-53, 85, 0), V(-49.5, 85, 0)), False)
sketch14.addGeometry(Part.LineSegment(V(-49.5, 85, 0), V(-49.5, 82, 0)), False)
sketch14.addGeometry(Part.Circle(V(-52.5, 81.5, 0), V(0, 0, 1), 2), False)
sketch14.addConstraint(Sketcher.Constraint("Coincident", 0, 2, 1, 1))
sketch14.addConstraint(Sketcher.Constraint("Coincident", 1, 2, 2, 1))
sketch14.addConstraint(Sketcher.Constraint("Tangent", 2, 2, 3, 2))
sketch14.addConstraint(Sketcher.Constraint("Tangent", 3, 1, 4, 1))
sketch14.addConstraint(Sketcher.Constraint("Coincident", 4, 2, 0, 1))
sketch14.addConstraint(Sketcher.Constraint("Coincident", 6, 2, 7, 1))
sketch14.addConstraint(Sketcher.Constraint("Coincident", 7, 2, 8, 1))
sketch14.addConstraint(Sketcher.Constraint("Coincident", 8, 2, 9, 2))
sketch14.addConstraint(Sketcher.Constraint("Tangent", 9, 1, 10, 1))
sketch14.addConstraint(Sketcher.Constraint("Coincident", 10, 2, 11, 1))
sketch14.addConstraint(Sketcher.Constraint("Coincident", 11, 2, 6, 1))
sketch14.addConstraint(Sketcher.Constraint("Horizontal", 0))
sketch14.addConstraint(Sketcher.Constraint("Vertical", 1))
sketch14.addConstraint(Sketcher.Constraint("Horizontal", 2))
sketch14.addConstraint(Sketcher.Constraint("Vertical", 4))
sketch14.addConstraint(Sketcher.Constraint("Vertical", 6))
sketch14.addConstraint(Sketcher.Constraint("Horizontal", 7))
sketch14.addConstraint(Sketcher.Constraint("Vertical", 8))
sketch14.addConstraint(Sketcher.Constraint("Horizontal", 10))
sketch14.addConstraint(Sketcher.Constraint("Vertical", 11))
sketch14.addConstraint(Sketcher.Constraint("Equal", 5, 12))
sketch14.addConstraint(Sketcher.Constraint("PointOnObject", 3, 1, -2))
sketch14.addConstraint(Sketcher.Constraint("Horizontal", 5, 3, 12, 3))
sketch14.addConstraint(Sketcher.Constraint("Horizontal", 4, 2, 6, 2))
sketch14.addConstraint(Sketcher.Constraint("Horizontal", 3, 1, 8, 2))
sketch14.addConstraint(Sketcher.Constraint("Horizontal", 2, 2, 9, 1))
sketch14.addConstraint(Sketcher.Constraint("Horizontal", 8, 2, 11, 2))
sketch14.addConstraint(Sketcher.Constraint("Equal", 8, 11))
sketch14.addConstraint(Sketcher.Constraint("Diameter", 5, 4.0))
sketch14.addConstraint(Sketcher.Constraint("Radius", 3, 3.0))
sketch14.addConstraint(Sketcher.Constraint("DistanceY", -1, 1, 3, 3, 82.0))
sketch14.addConstraint(Sketcher.Constraint("Radius", 9, 2.999994))
sketch14.addConstraint(Sketcher.Constraint("DistanceX", 0, 2, 0, 1, 6.344161))
sketch14.addConstraint(Sketcher.Constraint("DistanceX", 10, 1, 10, 2, 3.45661))
sketch14.addConstraint(Sketcher.Constraint("DistanceY", -1, 1, 5, 3, 81.4948))
sketch14.addConstraint(Sketcher.Constraint("DistanceX", 12, 3, 5, 3, 48.9966))
sketch14.addConstraint(Sketcher.Constraint("DistanceX", 7, 2, 12, 3, 3.5052))
sketch14.addConstraint(Sketcher.Constraint("DistanceX", 5, 3, -1, 1, 3.49819))
pad4 = body.newObject("PartDesign::Pad", "Pad003")
pad4.Profile = sketch14
pad4.Length = 18

# Sketch on YZ plane
sketch15 = body.newObject("Sketcher::SketchObject", "Sketch014")
sketch15.AttachmentSupport = (doc.getObject("YZ_Plane"), [""])
sketch15.MapMode = "FlatFace"
add_polygon(sketch15, [(21, 1), (1, 1), (1, 8), (21, 8)])  # lines 0-3
add_polygon(sketch15, [(21, 74), (1, 74), (1, 81), (21, 81)])  # lines 4-7
sketch15.addConstraint(Sketcher.Constraint("Horizontal", 0))
sketch15.addConstraint(Sketcher.Constraint("Vertical", 1))
sketch15.addConstraint(Sketcher.Constraint("Horizontal", 2))
sketch15.addConstraint(Sketcher.Constraint("Vertical", 3))
sketch15.addConstraint(Sketcher.Constraint("Horizontal", 4))
sketch15.addConstraint(Sketcher.Constraint("Vertical", 5))
sketch15.addConstraint(Sketcher.Constraint("Horizontal", 6))
sketch15.addConstraint(Sketcher.Constraint("Vertical", 7))
sketch15.addConstraint(Sketcher.Constraint("Vertical", 1, 2, 4, 2))
sketch15.addConstraint(Sketcher.Constraint("Vertical", 3, 2, 6, 2))
sketch15.addConstraint(Sketcher.Constraint("Equal", 3, 5))
sketch15.addConstraint(Sketcher.Constraint("DistanceX", 0, 2, 0, 1, 20.0))
sketch15.addConstraint(Sketcher.Constraint("DistanceY", 1, 1, 1, 2, 7.0))
sketch15.addConstraint(Sketcher.Constraint("DistanceX", -1, 1, 0, 2, 1.0))
sketch15.addConstraint(Sketcher.Constraint("DistanceY", -1, 1, 0, 2, 1.0))
sketch15.addConstraint(Sketcher.Constraint("DistanceY", -1, 1, 4, 2, 74.0))
pad5 = body.newObject("PartDesign::Pad", "Pad004")
pad5.Profile = sketch15
pad5.Length = 2

# Sketch on YZ plane
sketch16 = body.newObject("Sketcher::SketchObject", "Sketch015")
sketch16.AttachmentSupport = (doc.getObject("YZ_Plane"), [""])
sketch16.MapMode = "FlatFace"
add_polygon(sketch16, [(21, 6), (1, 6), (1, 8), (21, 8)])  # lines 0-3
add_polygon(sketch16, [(21, 74), (1, 74), (1, 76), (21, 76)])  # lines 4-7
sketch16.addConstraint(Sketcher.Constraint("Horizontal", 0))
sketch16.addConstraint(Sketcher.Constraint("Vertical", 1))
sketch16.addConstraint(Sketcher.Constraint("Horizontal", 2))
sketch16.addConstraint(Sketcher.Constraint("Vertical", 3))
sketch16.addConstraint(Sketcher.Constraint("Horizontal", 4))
sketch16.addConstraint(Sketcher.Constraint("Vertical", 5))
sketch16.addConstraint(Sketcher.Constraint("Horizontal", 6))
sketch16.addConstraint(Sketcher.Constraint("Vertical", 7))
sketch16.addConstraint(Sketcher.Constraint("Vertical", 1, 2, 4, 2))
sketch16.addConstraint(Sketcher.Constraint("Vertical", 3, 2, 6, 2))
sketch16.addConstraint(Sketcher.Constraint("Equal", 3, 5))
sketch16.addConstraint(Sketcher.Constraint("DistanceX", 0, 2, 0, 1, 20.0))
sketch16.addConstraint(Sketcher.Constraint("DistanceY", 1, 1, 1, 2, 2.0))
sketch16.addConstraint(Sketcher.Constraint("DistanceX", -1, 1, 0, 2, 1.0))
sketch16.addConstraint(Sketcher.Constraint("DistanceY", -1, 1, 0, 2, 6.0))
sketch16.addConstraint(Sketcher.Constraint("DistanceY", -1, 1, 4, 2, 74.0))
pad6 = body.newObject("PartDesign::Pad", "Pad005")
pad6.Profile = sketch16
pad6.Length = 1
pad6.Reversed = True

# Sketch on YZ plane
sketch17 = body.newObject("Sketcher::SketchObject", "Sketch016")
sketch17.AttachmentSupport = (doc.getObject("YZ_Plane"), [""])
sketch17.MapMode = "FlatFace"
sketch17.AttachmentOffset = App.Placement(V(0, 0, -1), App.Rotation())
add_polygon(sketch17, [(21, 1), (1, 1), (1, 8), (21, 8)])  # lines 0-3
add_polygon(sketch17, [(21, 74), (1, 74), (1, 81), (21, 81)])  # lines 4-7
sketch17.addConstraint(Sketcher.Constraint("Horizontal", 0))
sketch17.addConstraint(Sketcher.Constraint("Vertical", 1))
sketch17.addConstraint(Sketcher.Constraint("Horizontal", 2))
sketch17.addConstraint(Sketcher.Constraint("Vertical", 3))
sketch17.addConstraint(Sketcher.Constraint("Horizontal", 4))
sketch17.addConstraint(Sketcher.Constraint("Vertical", 5))
sketch17.addConstraint(Sketcher.Constraint("Horizontal", 6))
sketch17.addConstraint(Sketcher.Constraint("Vertical", 7))
sketch17.addConstraint(Sketcher.Constraint("Vertical", 1, 2, 4, 2))
sketch17.addConstraint(Sketcher.Constraint("Vertical", 3, 2, 6, 2))
sketch17.addConstraint(Sketcher.Constraint("Equal", 3, 5))
sketch17.addConstraint(Sketcher.Constraint("DistanceX", 0, 2, 0, 1, 20.0))
sketch17.addConstraint(Sketcher.Constraint("DistanceY", 1, 1, 1, 2, 7.0))
sketch17.addConstraint(Sketcher.Constraint("DistanceX", -1, 1, 0, 2, 1.0))
sketch17.addConstraint(Sketcher.Constraint("DistanceY", -1, 1, 0, 2, 1.0))
sketch17.addConstraint(Sketcher.Constraint("DistanceY", -1, 1, 4, 2, 74.0))
pad7 = body.newObject("PartDesign::Pad", "Pad006")
pad7.Profile = sketch17
pad7.Length = 2
pad7.Reversed = True

# Sketch on YZ plane
sketch18 = body.newObject("Sketcher::SketchObject", "Sketch017")
sketch18.AttachmentSupport = (doc.getObject("YZ_Plane"), [""])
sketch18.MapMode = "FlatFace"
sketch18.AttachmentOffset = App.Placement(V(0, 0, 15), App.Rotation())
add_polygon(sketch18, [(62, 98), (-13, 98), (-13, -13), (62, -13)])  # lines 0-3
add_polygon(sketch18, [(0, 72), (0, 82), (22, 82), (22, 72)])  # lines 4-7
add_polygon(sketch18, [(0, 0), (0, 10), (22, 10), (22, 0)])  # lines 8-11
sketch18.addConstraint(Sketcher.Constraint("Horizontal", 0))
sketch18.addConstraint(Sketcher.Constraint("Vertical", 1))
sketch18.addConstraint(Sketcher.Constraint("Horizontal", 2))
sketch18.addConstraint(Sketcher.Constraint("Vertical", 3))
sketch18.addConstraint(Sketcher.Constraint("Vertical", 4))
sketch18.addConstraint(Sketcher.Constraint("Horizontal", 5))
sketch18.addConstraint(Sketcher.Constraint("Vertical", 6))
sketch18.addConstraint(Sketcher.Constraint("Horizontal", 7))
sketch18.addConstraint(Sketcher.Constraint("Vertical", 8))
sketch18.addConstraint(Sketcher.Constraint("Horizontal", 9))
sketch18.addConstraint(Sketcher.Constraint("Vertical", 10))
sketch18.addConstraint(Sketcher.Constraint("Horizontal", 11))
sketch18.addConstraint(Sketcher.Constraint("Coincident", 11, 2, -1, 1))
sketch18.addConstraint(Sketcher.Constraint("PointOnObject", 4, 2, -2))
sketch18.addConstraint(Sketcher.Constraint("Vertical", 6, 2, 9, 2))
sketch18.addConstraint(Sketcher.Constraint("Equal", 6, 8))
sketch18.addConstraint(Sketcher.Constraint("DistanceX", 5, 1, 5, 2, 22.0))
sketch18.addConstraint(Sketcher.Constraint("DistanceY", 4, 1, 4, 2, 10.0))
sketch18.addConstraint(Sketcher.Constraint("DistanceY", -1, 1, 4, 2, 82.0))
sketch18.addConstraint(Sketcher.Constraint("DistanceX", 0, 2, 0, 1, 75.698))
sketch18.addConstraint(Sketcher.Constraint("DistanceY", 1, 2, 1, 1, 111.698))
sketch18.addConstraint(Sketcher.Constraint("DistanceX", 0, 2, -1, 1, 13.349))
sketch18.addConstraint(Sketcher.Constraint("DistanceY", -1, 1, 0, 2, 98.349))
pocket11 = body.newObject("PartDesign::Pocket", "Pocket010")
pocket11.Profile = sketch18
pocket11.Length = 8

# Sketch on XZ plane
sketch19 = body.newObject("Sketcher::SketchObject", "Sketch018")
sketch19.AttachmentSupport = (doc.getObject("XZ_Plane"), [""])
sketch19.MapMode = "FlatFace"
sketch19.AttachmentOffset = App.Placement(V(0, 0, -21), App.Rotation())
add_polygon(sketch19, [(-86, 0), (-86, 88), (7, 88), (7, 0)])  # lines 0-3
sketch19.addConstraint(Sketcher.Constraint("Vertical", 0))
sketch19.addConstraint(Sketcher.Constraint("Horizontal", 1))
sketch19.addConstraint(Sketcher.Constraint("Vertical", 2))
sketch19.addConstraint(Sketcher.Constraint("Horizontal", 3))
sketch19.addConstraint(Sketcher.Constraint("PointOnObject", 2, 2, -1))
sketch19.addConstraint(Sketcher.Constraint("DistanceX", -1, 1, 1, 2, 7.0))
sketch19.addConstraint(Sketcher.Constraint("DistanceY", 0, 1, 0, 2, 88.449919))
sketch19.addConstraint(Sketcher.Constraint("DistanceX", 1, 1, 1, 2, 93.129876))
pocket12 = body.newObject("PartDesign::Pocket", "Pocket011")
pocket12.Profile = sketch19
pocket12.Type = "ThroughAll"

doc.recompute()
